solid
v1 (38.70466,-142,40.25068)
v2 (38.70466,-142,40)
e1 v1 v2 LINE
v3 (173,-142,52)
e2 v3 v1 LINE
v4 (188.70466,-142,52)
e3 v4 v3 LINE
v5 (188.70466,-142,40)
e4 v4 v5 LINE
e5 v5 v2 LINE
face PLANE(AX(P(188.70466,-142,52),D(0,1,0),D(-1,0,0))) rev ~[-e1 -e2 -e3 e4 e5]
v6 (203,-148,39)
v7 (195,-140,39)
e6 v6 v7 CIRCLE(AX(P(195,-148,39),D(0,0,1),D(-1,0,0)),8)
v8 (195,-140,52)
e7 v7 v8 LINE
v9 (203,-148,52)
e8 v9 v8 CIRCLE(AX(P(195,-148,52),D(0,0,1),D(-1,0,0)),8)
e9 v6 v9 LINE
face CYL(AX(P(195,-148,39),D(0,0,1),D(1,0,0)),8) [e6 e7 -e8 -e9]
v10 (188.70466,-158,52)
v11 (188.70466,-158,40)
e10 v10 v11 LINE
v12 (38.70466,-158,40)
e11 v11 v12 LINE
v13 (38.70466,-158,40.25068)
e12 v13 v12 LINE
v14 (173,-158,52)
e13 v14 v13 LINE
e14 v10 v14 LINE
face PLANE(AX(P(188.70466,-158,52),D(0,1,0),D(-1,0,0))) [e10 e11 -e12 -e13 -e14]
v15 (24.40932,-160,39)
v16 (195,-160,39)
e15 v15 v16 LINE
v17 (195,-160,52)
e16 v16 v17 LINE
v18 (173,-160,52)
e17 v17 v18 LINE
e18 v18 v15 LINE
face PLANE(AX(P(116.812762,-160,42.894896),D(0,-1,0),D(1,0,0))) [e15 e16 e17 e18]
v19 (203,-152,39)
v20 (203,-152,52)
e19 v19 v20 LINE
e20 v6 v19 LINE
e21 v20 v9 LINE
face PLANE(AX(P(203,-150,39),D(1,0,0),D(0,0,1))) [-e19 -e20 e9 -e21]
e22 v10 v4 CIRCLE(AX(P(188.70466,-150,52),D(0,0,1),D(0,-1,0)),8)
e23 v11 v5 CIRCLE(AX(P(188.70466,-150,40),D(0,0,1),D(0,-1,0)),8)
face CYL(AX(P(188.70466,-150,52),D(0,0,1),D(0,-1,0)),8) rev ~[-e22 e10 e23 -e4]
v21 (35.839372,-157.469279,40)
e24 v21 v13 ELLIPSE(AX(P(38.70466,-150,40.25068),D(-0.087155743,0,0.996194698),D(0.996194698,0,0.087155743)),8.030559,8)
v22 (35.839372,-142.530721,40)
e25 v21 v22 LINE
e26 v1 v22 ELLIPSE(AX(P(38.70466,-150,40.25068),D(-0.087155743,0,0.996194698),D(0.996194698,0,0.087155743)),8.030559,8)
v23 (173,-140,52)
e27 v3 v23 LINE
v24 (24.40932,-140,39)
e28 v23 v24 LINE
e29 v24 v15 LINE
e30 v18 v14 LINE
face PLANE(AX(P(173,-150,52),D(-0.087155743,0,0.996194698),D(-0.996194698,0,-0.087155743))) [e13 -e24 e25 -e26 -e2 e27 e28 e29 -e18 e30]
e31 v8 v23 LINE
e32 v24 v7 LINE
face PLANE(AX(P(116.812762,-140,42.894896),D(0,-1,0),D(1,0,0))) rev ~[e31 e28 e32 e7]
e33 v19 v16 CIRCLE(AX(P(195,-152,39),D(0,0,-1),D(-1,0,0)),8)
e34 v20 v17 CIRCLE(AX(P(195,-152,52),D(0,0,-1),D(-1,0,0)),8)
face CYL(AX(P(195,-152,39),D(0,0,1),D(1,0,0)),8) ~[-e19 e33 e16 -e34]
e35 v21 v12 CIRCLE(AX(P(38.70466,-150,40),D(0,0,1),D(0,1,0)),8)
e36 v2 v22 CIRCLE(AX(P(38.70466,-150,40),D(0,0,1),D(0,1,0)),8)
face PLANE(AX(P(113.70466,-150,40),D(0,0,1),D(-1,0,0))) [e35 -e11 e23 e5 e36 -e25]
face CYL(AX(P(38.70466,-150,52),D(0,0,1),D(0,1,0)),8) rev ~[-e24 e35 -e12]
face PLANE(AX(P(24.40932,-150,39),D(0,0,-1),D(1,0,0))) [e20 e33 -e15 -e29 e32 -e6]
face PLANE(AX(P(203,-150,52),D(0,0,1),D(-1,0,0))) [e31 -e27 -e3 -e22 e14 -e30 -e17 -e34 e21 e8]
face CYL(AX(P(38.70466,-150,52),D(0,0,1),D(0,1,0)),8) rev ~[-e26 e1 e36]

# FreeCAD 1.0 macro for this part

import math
import FreeCAD as App
import Part
import Sketcher

V = App.Vector
Q = App.Units.Quantity


def edges_at(feature, points):
    """Names of the edges that pass closest to the given points."""
    edges = feature.Shape.Edges
    near = lambda p: min(range(len(edges)), key=lambda i: edges[i].distToShape(Part.Vertex(*p))[0])
    return sorted({f"Edge{near(p) + 1}" for p in points})

doc = App.newDocument("Part")
params = doc.addObject("Spreadsheet::Sheet", "Params")
for row, (alias, value) in enumerate([
    ("sketch1_width", "30 mm"),
    ("sketch1_height", "13 mm"),
    ("pad1_length", "20 mm"),
    ("fillet_radius", "8 mm"),
    ("sketch2_radius", "8 mm"),
    ("sketch2_height", "150 mm"),
    ("pocket1_length", "12 mm"),
], start=1):
    params.set(f"A{row}", alias)
    params.set(f"B{row}", "=" + value)
    params.setAlias(f"B{row}", alias)

body = doc.addObject("PartDesign::Body", "Body")

# Sketch on YZ plane
sketch1 = body.newObject("Sketcher::SketchObject", "Sketch")
sketch1.AttachmentSupport = (doc.getObject("YZ_Plane"), [""])
sketch1.MapMode = "FlatFace"
sketch1.addGeometry([
    Part.LineSegment(V(0, 13, 0), V(-149, 0, 0)),
    Part.LineSegment(V(-149, 0, 0), V(30, 0, 0)),
    Part.LineSegment(V(30, 0, 0), V(30, 13, 0)),
    Part.LineSegment(V(30, 13, 0), V(0, 13, 0)),
], False)
sketch1.addConstraint([
    Sketcher.Constraint("Coincident", 0, 2, 1, 1),
    Sketcher.Constraint("Coincident", 1, 2, 2, 1),
    Sketcher.Constraint("Coincident", 2, 2, 3, 1),
    Sketcher.Constraint("Coincident", 3, 2, 0, 1),
    Sketcher.Constraint("Horizontal", 1),
    Sketcher.Constraint("Vertical", 2),
    Sketcher.Constraint("Horizontal", 3),
    Sketcher.Constraint("PointOnObject", 0, 2, -1),
    Sketcher.Constraint("PointOnObject", 3, 2, -2),
    Sketcher.Constraint("DistanceX", 3, 2, 3, 1, 30.0),
    Sketcher.Constraint("DistanceY", 2, 1, 2, 2, 13.0),
    Sketcher.Constraint("Angle", 0, Q("-175 deg")),
])
sketch1.setExpression("Constraints[9]", "Params.sketch1_width")
sketch1.setExpression("Constraints[10]", "Params.sketch1_height")
pad1 = body.newObject("PartDesign::Pad", "Pad")
pad1.Profile = sketch1
pad1.setExpression("Length", "Params.pad1_length")
pad1.Midplane = True
doc.recompute()

fillet = body.newObject("PartDesign::Fillet", "Fillet")
fillet.Base = (pad1, edges_at(pad1, [(10, 30, 6.5), (-10, 30, 6.5)]))
fillet.setExpression("Radius", "Params.fillet_radius")

# Sketch on XY plane
sketch2 = body.newObject("Sketcher::SketchObject", "Sketch001")
sketch2.AttachmentSupport = (doc.getObject("XY_Plane"), [""])
sketch2.MapMode = "FlatFace"
sketch2.AttachmentOffset = App.Placement(V(0, 0, 13), App.Rotation())
sketch2.addGeometry([
    Part.ArcOfCircle(Part.Circle(V(0, 16, 0), V(0, 0, 1), 8), math.radians(0), math.radians(180)),
    Part.LineSegment(V(-8, 16, 0), V(-8, -134, 0)),
    Part.ArcOfCircle(Part.Circle(V(0, -134, 0), V(0, 0, 1), 8), math.radians(180), math.radians(360)),
    Part.LineSegment(V(8, -134, 0), V(8, 16, 0)),
], False)
sketch2.addConstraint([
    Sketcher.Constraint("Tangent", 0, 2, 1, 1),
    Sketcher.Constraint("Tangent", 1, 2, 2, 1),
    Sketcher.Constraint("Tangent", 2, 2, 3, 1),
    Sketcher.Constraint("Tangent", 3, 2, 0, 1),
    Sketcher.Constraint("Vertical", 1),
    Sketcher.Constraint("Vertical", 3),
    Sketcher.Constraint("PointOnObject", 0, 3, -2),
    Sketcher.Constraint("Radius", 0, 8.0),
    Sketcher.Constraint("DistanceY", 1, 2, 1, 1, 150.0),
    Sketcher.Constraint("DistanceY", -1, 1, 0, 3, 15.70466),
])
sketch2.setExpression("Constraints[7]", "Params.sketch2_radius")
sketch2.setExpression("Constraints[8]", "Params.sketch2_height")
pocket1 = body.newObject("PartDesign::Pocket", "Pocket")
pocket1.Profile = sketch2
pocket1.setExpression("Length", "Params.pocket1_length")
body2 = doc.addObject("PartDesign::Body", "Body001")
doc.recompute()

body.Placement = App.Placement(V(173, -150, 39), App.Rotation(V(0, 0, 1), 270))
boolean = body2.newObject("PartDesign::Boolean", "Boolean")
boolean.Type = "Fuse"
boolean.addObjects([body])

doc.recompute()
